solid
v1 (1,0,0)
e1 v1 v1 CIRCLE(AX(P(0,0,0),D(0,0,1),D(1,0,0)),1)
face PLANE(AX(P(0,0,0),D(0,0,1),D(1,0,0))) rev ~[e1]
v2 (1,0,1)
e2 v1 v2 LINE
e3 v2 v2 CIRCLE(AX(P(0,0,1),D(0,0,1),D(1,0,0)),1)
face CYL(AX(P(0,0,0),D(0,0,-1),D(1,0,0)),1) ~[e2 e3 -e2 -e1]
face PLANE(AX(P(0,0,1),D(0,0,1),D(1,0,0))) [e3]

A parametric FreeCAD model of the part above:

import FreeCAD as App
import Part
import Sketcher
Q = App.Units.Quantity

doc = App.newDocument("Part")
body = doc.addObject("PartDesign::Body", "Body")

# Sketch on XY plane
sketch1 = body.newObject("Sketcher::SketchObject", "Sketch")
sketch1.AttachmentSupport = (doc.getObject("XY_Plane"), [""])
sketch1.MapMode = "FlatFace"
sketch1.addGeometry(Part.Circle(App.Vector(0, 0, 0), App.Vector(0, 0, 1), 1), False)
sketch1.addConstraint(Sketcher.Constraint("Coincident", 0, 3, -1, 1))
sketch1.addConstraint(Sketcher.Constraint("Diameter", 0, Q("2 mm")))
pad1 = body.newObject("PartDesign::Pad", "Pad")
pad1.Profile = sketch1
pad1.Length = 1

doc.recompute()
